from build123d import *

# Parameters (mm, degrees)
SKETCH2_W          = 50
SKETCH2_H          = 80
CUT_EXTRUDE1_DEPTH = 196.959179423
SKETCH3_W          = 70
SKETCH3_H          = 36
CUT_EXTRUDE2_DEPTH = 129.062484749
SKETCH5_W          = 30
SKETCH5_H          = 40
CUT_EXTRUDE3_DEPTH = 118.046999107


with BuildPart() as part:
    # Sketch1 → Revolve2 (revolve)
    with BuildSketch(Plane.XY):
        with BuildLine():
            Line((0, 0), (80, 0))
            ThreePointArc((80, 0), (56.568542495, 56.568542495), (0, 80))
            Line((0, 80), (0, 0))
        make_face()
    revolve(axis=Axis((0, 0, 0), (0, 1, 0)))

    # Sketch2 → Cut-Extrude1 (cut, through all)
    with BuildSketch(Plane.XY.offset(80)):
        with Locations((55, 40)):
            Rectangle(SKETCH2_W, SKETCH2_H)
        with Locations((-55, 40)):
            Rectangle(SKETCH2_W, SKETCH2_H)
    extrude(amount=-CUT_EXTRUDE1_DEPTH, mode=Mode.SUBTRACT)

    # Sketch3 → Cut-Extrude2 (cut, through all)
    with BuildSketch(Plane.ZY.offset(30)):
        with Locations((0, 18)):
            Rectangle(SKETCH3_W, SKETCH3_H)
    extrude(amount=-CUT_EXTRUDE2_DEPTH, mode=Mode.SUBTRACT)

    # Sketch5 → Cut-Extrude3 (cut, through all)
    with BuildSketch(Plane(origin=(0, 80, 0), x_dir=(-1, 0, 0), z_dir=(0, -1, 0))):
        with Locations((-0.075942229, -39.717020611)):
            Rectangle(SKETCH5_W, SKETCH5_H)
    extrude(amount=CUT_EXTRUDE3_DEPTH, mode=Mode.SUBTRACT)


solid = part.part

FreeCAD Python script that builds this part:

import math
import FreeCAD as App
import Part
import Sketcher

V = App.Vector
Q = App.Units.Quantity


def add_polygon(sketch, points):
    """Adds a closed chain of lines whose ends are joined by coincident constraints."""
    first, n = sketch.GeometryCount, len(points)
    for a, b in zip(points, points[1:] + points[:1]):
        sketch.addGeometry(Part.LineSegment(App.Vector(*a, 0), App.Vector(*b, 0)), False)
    for i in range(n):
        sketch.addConstraint(Sketcher.Constraint("Coincident", first + i, 2, first + (i + 1) % n, 1))

doc = App.newDocument("Part")
params = doc.addObject("Spreadsheet::Sheet", "Params")
for row, (alias, value) in enumerate([
    ("sketch1_radius", "80 mm"),
    ("revolution_angle", "360 deg"),
    ("sketch2_width", "50 mm"),
    ("sketch2_height", "80 mm"),
    ("sketch3_width", "36 mm"),
    ("sketch3_height", "70 mm"),
    ("sketch4_width", "30 mm"),
    ("sketch4_height", "40 mm"),
], start=1):
    params.set(f"A{row}", alias)
    params.set(f"B{row}", "=" + value)
    params.setAlias(f"B{row}", alias)

body = doc.addObject("PartDesign::Body", "Body")

# Sketch on XY plane
sketch1 = body.newObject("Sketcher::SketchObject", "Sketch")
sketch1.AttachmentSupport = (doc.getObject("XY_Plane"), [""])
sketch1.MapMode = "FlatFace"
sketch1.addGeometry([
    Part.LineSegment(V(0, 0, 0), V(80, 0, 0)),
    Part.ArcOfCircle(Part.Circle(V(0, 0, 0), V(0, 0, 1), 80), math.radians(0), math.radians(90)),
    Part.LineSegment(V(0, 80, 0), V(0, 0, 0)),
], False)
sketch1.addConstraint([
    Sketcher.Constraint("Coincident", 0, 2, 1, 1),
    Sketcher.Constraint("Coincident", 1, 2, 2, 1),
    Sketcher.Constraint("Coincident", 2, 2, 0, 1),
    Sketcher.Constraint("Horizontal", 0),
    Sketcher.Constraint("Vertical", 2),
    Sketcher.Constraint("Coincident", 1, 3, -1, 1),
    Sketcher.Constraint("Coincident", 2, 2, -1, 1),
    Sketcher.Constraint("Radius", 1, Q("80 mm")),
])
sketch1.setExpression("Constraints[7]", "Params.sketch1_radius")
revolution = body.newObject("PartDesign::Revolution", "Revolution")
revolution.Profile = sketch1
revolution.ReferenceAxis = (sketch1, ["V_Axis"])
revolution.setExpression("Angle", "Params.revolution_angle")

# Sketch on XY plane
sketch2 = body.newObject("Sketcher::SketchObject", "Sketch001")
sketch2.AttachmentSupport = (doc.getObject("XY_Plane"), [""])
sketch2.MapMode = "FlatFace"
sketch2.AttachmentOffset = App.Placement(V(0, 0, 80), App.Rotation())
add_polygon(sketch2, [(30, 80), (30, 0), (80, 0), (80, 80)])  # lines 0-3
add_polygon(sketch2, [(-80, 80), (-80, 0), (-30, 0), (-30, 80)])  # lines 4-7
sketch2.addConstraint([
    Sketcher.Constraint("Vertical", 0),
    Sketcher.Constraint("Horizontal", 1),
    Sketcher.Constraint("Vertical", 2),
    Sketcher.Constraint("Horizontal", 3),
    Sketcher.Constraint("Vertical", 4),
    Sketcher.Constraint("Horizontal", 5),
    Sketcher.Constraint("Vertical", 6),
    Sketcher.Constraint("Horizontal", 7),
    Sketcher.Constraint("Symmetric", 1, 2, 4, 2, -1, 1),
    Sketcher.Constraint("Symmetric", 0, 2, 5, 2, -2),
    Sketcher.Constraint("Horizontal", 3, 2, 6, 2),
    Sketcher.Constraint("DistanceX", 1, 1, 1, 2, Q("50 mm")),
    Sketcher.Constraint("DistanceY", 0, 2, 0, 1, Q("80 mm")),
    Sketcher.Constraint("DistanceX", -1, 1, 0, 2, Q("30 mm")),
])
sketch2.setExpression("Constraints[19]", "Params.sketch2_width")
sketch2.setExpression("Constraints[20]", "Params.sketch2_height")
pocket1 = body.newObject("PartDesign::Pocket", "Pocket")
pocket1.Profile = sketch2
pocket1.Type = "ThroughAll"

# Sketch on YZ plane
sketch3 = body.newObject("Sketcher::SketchObject", "Sketch002")
sketch3.AttachmentSupport = (doc.getObject("YZ_Plane"), [""])
sketch3.MapMode = "FlatFace"
sketch3.AttachmentOffset = App.Placement(V(0, 0, -30), App.Rotation())
add_polygon(sketch3, [(36, -35), (0, -35), (0, 35), (36, 35)])  # lines 0-3
sketch3.addConstraint([
    Sketcher.Constraint("Horizontal", 0),
    Sketcher.Constraint("Vertical", 1),
    Sketcher.Constraint("Horizontal", 2),
    Sketcher.Constraint("Vertical", 3),
    Sketcher.Constraint("Symmetric", 0, 2, 1, 2, -1, 1),
    Sketcher.Constraint("DistanceX", 0, 2, 0, 1, Q("36 mm")),
    Sketcher.Constraint("DistanceY", 1, 1, 1, 2, Q("70 mm")),
])
sketch3.setExpression("Constraints[9]", "Params.sketch3_width")
sketch3.setExpression("Constraints[10]", "Params.sketch3_height")
pocket2 = body.newObject("PartDesign::Pocket", "Pocket001")
pocket2.Profile = sketch3
pocket2.Type = "ThroughAll"
pocket2.Reversed = True

# Sketch on XZ plane
sketch4 = body.newObject("Sketcher::SketchObject", "Sketch003")
sketch4.AttachmentSupport = (doc.getObject("XZ_Plane"), [""])
sketch4.MapMode = "FlatFace"
sketch4.AttachmentOffset = App.Placement(V(0, 0, -80), App.Rotation())
add_polygon(sketch4, [(15, 20), (15, 60), (-15, 60), (-15, 20)])  # lines 0-3
sketch4.addConstraint([
    Sketcher.Constraint("Vertical", 0),
    Sketcher.Constraint("Horizontal", 1),
    Sketcher.Constraint("Vertical", 2),
    Sketcher.Constraint("Horizontal", 3),
    Sketcher.Constraint("DistanceX", 1, 2, 1, 1, Q("30 mm")),
    Sketcher.Constraint("DistanceY", 0, 1, 0, 2, Q("40 mm")),
    Sketcher.Constraint("DistanceY", -1, 1, 0, 2, Q("59.717021 mm")),
    Sketcher.Constraint("DistanceX", -1, 1, 0, 2, Q("15.075942 mm")),
])
sketch4.setExpression("Constraints[8]", "Params.sketch4_width")
sketch4.setExpression("Constraints[9]", "Params.sketch4_height")
pocket3 = body.newObject("PartDesign::Pocket", "Pocket002")
pocket3.Profile = sketch4
pocket3.Type = "ThroughAll"
pocket3.Reversed = True

doc.recompute()
